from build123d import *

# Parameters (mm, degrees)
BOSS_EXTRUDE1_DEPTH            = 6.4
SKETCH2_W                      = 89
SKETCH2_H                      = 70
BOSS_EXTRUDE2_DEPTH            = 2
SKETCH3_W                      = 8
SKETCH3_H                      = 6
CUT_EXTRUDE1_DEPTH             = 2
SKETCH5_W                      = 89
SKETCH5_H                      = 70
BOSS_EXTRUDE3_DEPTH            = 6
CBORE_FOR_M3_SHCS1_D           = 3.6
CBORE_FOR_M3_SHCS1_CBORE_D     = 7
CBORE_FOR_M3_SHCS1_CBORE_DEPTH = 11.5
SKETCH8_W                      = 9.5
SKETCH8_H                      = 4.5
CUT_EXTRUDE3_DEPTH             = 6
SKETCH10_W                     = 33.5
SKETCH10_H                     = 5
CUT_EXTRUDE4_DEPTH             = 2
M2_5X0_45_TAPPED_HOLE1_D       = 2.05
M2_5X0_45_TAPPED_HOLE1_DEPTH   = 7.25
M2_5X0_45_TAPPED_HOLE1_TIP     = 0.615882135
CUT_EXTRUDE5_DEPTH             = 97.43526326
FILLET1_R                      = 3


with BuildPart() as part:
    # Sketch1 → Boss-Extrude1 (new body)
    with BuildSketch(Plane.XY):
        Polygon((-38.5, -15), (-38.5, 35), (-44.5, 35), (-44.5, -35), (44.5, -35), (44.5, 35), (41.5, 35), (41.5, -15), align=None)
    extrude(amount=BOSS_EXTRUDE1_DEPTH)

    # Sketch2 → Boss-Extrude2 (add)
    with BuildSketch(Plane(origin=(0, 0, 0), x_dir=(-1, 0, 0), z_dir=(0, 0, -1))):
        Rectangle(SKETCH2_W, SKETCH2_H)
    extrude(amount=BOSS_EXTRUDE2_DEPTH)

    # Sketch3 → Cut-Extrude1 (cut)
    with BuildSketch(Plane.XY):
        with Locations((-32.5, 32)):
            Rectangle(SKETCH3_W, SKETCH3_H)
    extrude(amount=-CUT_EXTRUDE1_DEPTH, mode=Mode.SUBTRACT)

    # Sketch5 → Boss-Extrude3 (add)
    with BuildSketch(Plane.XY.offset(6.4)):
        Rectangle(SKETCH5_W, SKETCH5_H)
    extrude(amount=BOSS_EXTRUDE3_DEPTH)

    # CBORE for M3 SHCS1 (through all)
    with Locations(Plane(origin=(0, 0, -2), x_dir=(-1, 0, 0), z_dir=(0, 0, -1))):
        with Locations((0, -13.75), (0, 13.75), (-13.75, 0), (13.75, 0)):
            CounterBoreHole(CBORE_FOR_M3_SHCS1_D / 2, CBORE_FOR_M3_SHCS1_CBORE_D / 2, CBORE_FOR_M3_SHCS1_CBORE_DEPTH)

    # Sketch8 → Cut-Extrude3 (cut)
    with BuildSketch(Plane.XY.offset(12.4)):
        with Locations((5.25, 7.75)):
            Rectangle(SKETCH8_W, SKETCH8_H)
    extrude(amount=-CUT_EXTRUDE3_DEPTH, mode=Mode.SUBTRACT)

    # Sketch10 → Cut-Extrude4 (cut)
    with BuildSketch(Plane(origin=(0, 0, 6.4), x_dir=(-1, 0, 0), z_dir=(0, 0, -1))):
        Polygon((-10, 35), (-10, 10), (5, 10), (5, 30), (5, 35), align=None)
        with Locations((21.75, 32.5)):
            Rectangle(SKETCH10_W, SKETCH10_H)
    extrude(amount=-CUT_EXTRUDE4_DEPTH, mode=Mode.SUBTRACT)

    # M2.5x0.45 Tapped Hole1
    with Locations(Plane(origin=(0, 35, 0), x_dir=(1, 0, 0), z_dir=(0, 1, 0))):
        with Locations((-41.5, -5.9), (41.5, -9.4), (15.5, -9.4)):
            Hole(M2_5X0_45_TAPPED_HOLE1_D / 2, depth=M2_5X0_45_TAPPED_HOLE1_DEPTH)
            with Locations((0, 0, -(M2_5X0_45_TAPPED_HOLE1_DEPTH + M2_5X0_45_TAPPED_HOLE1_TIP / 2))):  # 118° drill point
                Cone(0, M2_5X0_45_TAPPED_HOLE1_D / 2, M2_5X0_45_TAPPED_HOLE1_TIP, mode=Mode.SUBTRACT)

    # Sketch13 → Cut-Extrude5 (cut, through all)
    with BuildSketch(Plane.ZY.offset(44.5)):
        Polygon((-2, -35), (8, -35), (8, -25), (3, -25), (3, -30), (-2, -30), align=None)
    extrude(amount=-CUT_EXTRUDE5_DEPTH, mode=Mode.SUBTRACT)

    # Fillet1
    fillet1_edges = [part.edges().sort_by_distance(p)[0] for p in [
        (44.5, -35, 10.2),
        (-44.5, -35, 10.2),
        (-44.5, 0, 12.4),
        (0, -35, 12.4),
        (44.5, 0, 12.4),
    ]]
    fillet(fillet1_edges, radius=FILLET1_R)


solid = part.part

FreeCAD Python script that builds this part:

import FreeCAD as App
import Part
import Sketcher


def edges_at(feature, points):
    """Names of the edges that pass closest to the given points."""
    edges = feature.Shape.Edges
    near = lambda p: min(range(len(edges)), key=lambda i: edges[i].distToShape(Part.Vertex(*p))[0])
    return sorted({f"Edge{near(p) + 1}" for p in points})


def add_polygon(sketch, points):
    """Adds a closed chain of lines whose ends are joined by coincident constraints."""
    first, n = sketch.GeometryCount, len(points)
    for a, b in zip(points, points[1:] + points[:1]):
        sketch.addGeometry(Part.LineSegment(App.Vector(*a, 0), App.Vector(*b, 0)), False)
    for i in range(n):
        sketch.addConstraint(Sketcher.Constraint("Coincident", first + i, 2, first + (i + 1) % n, 1))

doc = App.newDocument("Part")
body = doc.addObject("PartDesign::Body", "Body")

sketch1 = body.newObject("Sketcher::SketchObject", "Sketch")
sketch1.AttachmentSupport = (doc.getObject("XY_Plane"), [""])
sketch1.MapMode = "FlatFace"
add_polygon(sketch1, [(-38.5, -15), (-38.5, 35), (-44.5, 35), (-44.5, -35), (44.5, -35), (44.5, 35), (41.5, 35), (41.5, -15)])
sketch1.addConstraint(Sketcher.Constraint("Vertical", 0))
sketch1.addConstraint(Sketcher.Constraint("Horizontal", 1))
sketch1.addConstraint(Sketcher.Constraint("Vertical", 2))
sketch1.addConstraint(Sketcher.Constraint("Horizontal", 3))
sketch1.addConstraint(Sketcher.Constraint("Vertical", 4))
sketch1.addConstraint(Sketcher.Constraint("Horizontal", 5))
sketch1.addConstraint(Sketcher.Constraint("Vertical", 6))
sketch1.addConstraint(Sketcher.Constraint("Horizontal", 7))
sketch1.addConstraint(Sketcher.Constraint("Symmetric", 1, 2, 3, 2, -1, 1))
sketch1.addConstraint(Sketcher.Constraint("Horizontal", 1, 2, 4, 2))
sketch1.addConstraint(Sketcher.Constraint("DistanceX", 1, 2, 1, 1, 6.0))
sketch1.addConstraint(Sketcher.Constraint("DistanceX", 3, 1, 3, 2, 89.0))
sketch1.addConstraint(Sketcher.Constraint("DistanceX", 5, 2, 5, 1, 3.0))
sketch1.addConstraint(Sketcher.Constraint("DistanceY", 0, 1, 0, 2, 50.0))
sketch1.addConstraint(Sketcher.Constraint("DistanceY", 2, 2, 2, 1, 70.0))
pad1 = body.newObject("PartDesign::Pad", "Pad")
pad1.Profile = sketch1
pad1.Length = 6.4

sketch2 = body.newObject("Sketcher::SketchObject", "Sketch001")
sketch2.AttachmentSupport = (doc.getObject("XY_Plane"), [""])
sketch2.MapMode = "FlatFace"
add_polygon(sketch2, [(44, 35), (44, -35), (-44, -35), (-44, 35)])
sketch2.addConstraint(Sketcher.Constraint("Vertical", 0))
sketch2.addConstraint(Sketcher.Constraint("Horizontal", 1))
sketch2.addConstraint(Sketcher.Constraint("Vertical", 2))
sketch2.addConstraint(Sketcher.Constraint("Horizontal", 3))
sketch2.addConstraint(Sketcher.Constraint("Symmetric", 0, 2, 2, 2, -1, 1))
sketch2.addConstraint(Sketcher.Constraint("DistanceX", 1, 2, 1, 1, 89.0))
sketch2.addConstraint(Sketcher.Constraint("DistanceY", 0, 2, 0, 1, 70.0))
pad2 = body.newObject("PartDesign::Pad", "Pad001")
pad2.Profile = sketch2
pad2.Length = 2
pad2.Reversed = True

sketch3 = body.newObject("Sketcher::SketchObject", "Sketch002")
sketch3.AttachmentSupport = (doc.getObject("XY_Plane"), [""])
sketch3.MapMode = "FlatFace"
add_polygon(sketch3, [(-36, 35), (-36, 29), (-28, 29), (-28, 35)])
sketch3.addConstraint(Sketcher.Constraint("Vertical", 0))
sketch3.addConstraint(Sketcher.Constraint("Horizontal", 1))
sketch3.addConstraint(Sketcher.Constraint("Vertical", 2))
sketch3.addConstraint(Sketcher.Constraint("Horizontal", 3))
sketch3.addConstraint(Sketcher.Constraint("DistanceX", 1, 1, 1, 2, 8.0))
sketch3.addConstraint(Sketcher.Constraint("DistanceY", 0, 2, 0, 1, 6.0))
sketch3.addConstraint(Sketcher.Constraint("DistanceY", -1, 1, 0, 2, 29.0))
sketch3.addConstraint(Sketcher.Constraint("DistanceX", 0, 2, -1, 1, 36.5))
pocket1 = body.newObject("PartDesign::Pocket", "Pocket")
pocket1.Profile = sketch3
pocket1.Length = 2

sketch4 = body.newObject("Sketcher::SketchObject", "Sketch003")
sketch4.AttachmentSupport = (doc.getObject("XY_Plane"), [""])
sketch4.MapMode = "FlatFace"
sketch4.AttachmentOffset = App.Placement(App.Vector(0, 0, 6.4), App.Rotation())
add_polygon(sketch4, [(-44, 35), (-44, -35), (44, -35), (44, 35)])
sketch4.addConstraint(Sketcher.Constraint("Vertical", 0))
sketch4.addConstraint(Sketcher.Constraint("Horizontal", 1))
sketch4.addConstraint(Sketcher.Constraint("Vertical", 2))
sketch4.addConstraint(Sketcher.Constraint("Horizontal", 3))
sketch4.addConstraint(Sketcher.Constraint("Symmetric", 0, 2, 2, 2, -1, 1))
sketch4.addConstraint(Sketcher.Constraint("DistanceX", 1, 1, 1, 2, 89.0))
sketch4.addConstraint(Sketcher.Constraint("DistanceY", 0, 2, 0, 1, 70.0))
pad3 = body.newObject("PartDesign::Pad", "Pad002")
pad3.Profile = sketch4
pad3.Length = 6

sketch5 = body.newObject("Sketcher::SketchObject", "Sketch004")
sketch5.AttachmentSupport = (doc.getObject("XY_Plane"), [""])
sketch5.MapMode = "FlatFace"
sketch5.AttachmentOffset = App.Placement(App.Vector(0, 0, -2), App.Rotation())
sketch5.addGeometry(Part.Circle(App.Vector(0, -13.8, 0), App.Vector(0, 0, 1), 1.8), False)
sketch5.addGeometry(Part.Circle(App.Vector(0, 13.8, 0), App.Vector(0, 0, 1), 1.8), False)
sketch5.addGeometry(Part.Circle(App.Vector(13.8, 0, 0), App.Vector(0, 0, 1), 1.8), False)
sketch5.addGeometry(Part.Circle(App.Vector(-13.8, 0, 0), App.Vector(0, 0, 1), 1.8), False)
sketch5.addConstraint(Sketcher.Constraint("Equal", 0, 1))
sketch5.addConstraint(Sketcher.Constraint("Equal", 1, 2))
sketch5.addConstraint(Sketcher.Constraint("Equal", 2, 3))
sketch5.addConstraint(Sketcher.Constraint("Symmetric", 0, 3, 1, 3, -1, 1))
sketch5.addConstraint(Sketcher.Constraint("Symmetric", 2, 3, 3, 3, -1, 1))
sketch5.addConstraint(Sketcher.Constraint("PointOnObject", 0, 3, -2))
sketch5.addConstraint(Sketcher.Constraint("PointOnObject", 2, 3, -1))
sketch5.addConstraint(Sketcher.Constraint("Diameter", 0, 3.6))
sketch5.addConstraint(Sketcher.Constraint("DistanceY", 0, 3, 1, 3, 27.5))
sketch5.addConstraint(Sketcher.Constraint("DistanceX", 3, 3, 2, 3, 27.5))
doc.recompute()
hole = body.newObject("PartDesign::Hole", "Hole")
hole.Profile = sketch5
hole.ThreadType = "None"
hole.Diameter = 3.6
hole.DepthType = "ThroughAll"
hole.HoleCutType = "Counterbore"
hole.HoleCutDiameter = 7
hole.HoleCutDepth = 11.5
hole.Reversed = True

sketch6 = body.newObject("Sketcher::SketchObject", "Sketch005")
sketch6.AttachmentSupport = (doc.getObject("XY_Plane"), [""])
sketch6.MapMode = "FlatFace"
sketch6.AttachmentOffset = App.Placement(App.Vector(0, 0, 12.4), App.Rotation())
add_polygon(sketch6, [(0.5, 10), (0.5, 5.5), (10, 5.5), (10, 10)])
sketch6.addConstraint(Sketcher.Constraint("Vertical", 0))
sketch6.addConstraint(Sketcher.Constraint("Horizontal", 1))
sketch6.addConstraint(Sketcher.Constraint("Vertical", 2))
sketch6.addConstraint(Sketcher.Constraint("Horizontal", 3))
sketch6.addConstraint(Sketcher.Constraint("DistanceX", 1, 1, 1, 2, 9.5))
sketch6.addConstraint(Sketcher.Constraint("DistanceY", 0, 2, 0, 1, 4.5))
sketch6.addConstraint(Sketcher.Constraint("DistanceX", -1, 1, 1, 2, 10.0))
sketch6.addConstraint(Sketcher.Constraint("DistanceY", -1, 1, 2, 2, 10.0))
pocket2 = body.newObject("PartDesign::Pocket", "Pocket001")
pocket2.Profile = sketch6
pocket2.Length = 6

sketch7 = body.newObject("Sketcher::SketchObject", "Sketch006")
sketch7.AttachmentSupport = (doc.getObject("XY_Plane"), [""])
sketch7.MapMode = "FlatFace"
sketch7.AttachmentOffset = App.Placement(App.Vector(0, 0, 6.4), App.Rotation())
add_polygon(sketch7, [(10, 35), (10, 10), (-5, 10), (-5, 30), (-38, 30), (-38, 35)])
sketch7.addConstraint(Sketcher.Constraint("Vertical", 0))
sketch7.addConstraint(Sketcher.Constraint("Horizontal", 1))
sketch7.addConstraint(Sketcher.Constraint("Vertical", 2))
sketch7.addConstraint(Sketcher.Constraint("Horizontal", 3))
sketch7.addConstraint(Sketcher.Constraint("Vertical", 4))
sketch7.addConstraint(Sketcher.Constraint("Horizontal", 5))
sketch7.addConstraint(Sketcher.Constraint("DistanceX", 1, 2, 1, 1, 15.0))
sketch7.addConstraint(Sketcher.Constraint("DistanceY", 0, 2, 0, 1, 25.0))
sketch7.addConstraint(Sketcher.Constraint("DistanceY", 2, 1, 2, 2, 20.0))
sketch7.addConstraint(Sketcher.Constraint("DistanceX", 3, 2, 3, 1, 33.5))
sketch7.addConstraint(Sketcher.Constraint("DistanceX", -1, 1, 0, 2, 10.0))
sketch7.addConstraint(Sketcher.Constraint("DistanceY", -1, 1, 0, 2, 10.0))
pocket3 = body.newObject("PartDesign::Pocket", "Pocket002")
pocket3.Profile = sketch7
pocket3.Length = 2
pocket3.Reversed = True

sketch8 = body.newObject("Sketcher::SketchObject", "Sketch007")
sketch8.AttachmentSupport = (doc.getObject("XZ_Plane"), [""])
sketch8.MapMode = "FlatFace"
sketch8.AttachmentOffset = App.Placement(App.Vector(0, 0, -35), App.Rotation())
sketch8.addGeometry(Part.Circle(App.Vector(-41.5, 5.9, 0), App.Vector(0, 0, 1), 1), False)
sketch8.addGeometry(Part.Circle(App.Vector(41.5, 9.4, 0), App.Vector(0, 0, 1), 1), False)
sketch8.addGeometry(Part.Circle(App.Vector(15.5, 9.4, 0), App.Vector(0, 0, 1), 1), False)
sketch8.addConstraint(Sketcher.Constraint("Equal", 0, 1))
sketch8.addConstraint(Sketcher.Constraint("Equal", 1, 2))
sketch8.addConstraint(Sketcher.Constraint("Horizontal", 1, 3, 2, 3))
sketch8.addConstraint(Sketcher.Constraint("Diameter", 0, 2.05))
sketch8.addConstraint(Sketcher.Constraint("DistanceX", 0, 3, 1, 3, 83.0))
sketch8.addConstraint(Sketcher.Constraint("DistanceX", 2, 3, 1, 3, 26.0))
sketch8.addConstraint(Sketcher.Constraint("DistanceX", 0, 3, -1, 1, 41.5))
sketch8.addConstraint(Sketcher.Constraint("DistanceY", -1, 1, 0, 3, 5.9))
sketch8.addConstraint(Sketcher.Constraint("DistanceY", -1, 1, 1, 3, 9.4))
doc.recompute()
hole2 = body.newObject("PartDesign::Hole", "Hole001")
hole2.Profile = sketch8
hole2.ThreadType = "None"
hole2.Diameter = 2.05
hole2.DepthType = "Dimension"
hole2.Depth = 7.25
hole2.DrillPoint = "Angled"
hole2.DrillPointAngle = 118
hole2.Reversed = True

sketch9 = body.newObject("Sketcher::SketchObject", "Sketch008")
sketch9.AttachmentSupport = (doc.getObject("YZ_Plane"), [""])
sketch9.MapMode = "FlatFace"
sketch9.AttachmentOffset = App.Placement(App.Vector(0, 0, -44.5), App.Rotation())
add_polygon(sketch9, [(-35, -2), (-35, 8), (-25, 8), (-25, 3), (-30, 3), (-30, -2)])
sketch9.addConstraint(Sketcher.Constraint("Vertical", 0))
sketch9.addConstraint(Sketcher.Constraint("Horizontal", 1))
sketch9.addConstraint(Sketcher.Constraint("Vertical", 2))
sketch9.addConstraint(Sketcher.Constraint("Horizontal", 3))
sketch9.addConstraint(Sketcher.Constraint("Vertical", 4))
sketch9.addConstraint(Sketcher.Constraint("Horizontal", 5))
sketch9.addConstraint(Sketcher.Constraint("Equal", 3, 5))
sketch9.addConstraint(Sketcher.Constraint("Equal", 1, 0))
sketch9.addConstraint(Sketcher.Constraint("Equal", 5, 2))
sketch9.addConstraint(Sketcher.Constraint("DistanceX", 1, 1, 1, 2, 10.0))
sketch9.addConstraint(Sketcher.Constraint("DistanceX", 0, 2, -1, 1, 35.0))
sketch9.addConstraint(Sketcher.Constraint("DistanceY", -1, 1, 0, 2, 8.0))
pocket4 = body.newObject("PartDesign::Pocket", "Pocket003")
pocket4.Profile = sketch9
pocket4.Type = "ThroughAll"
pocket4.Reversed = True
doc.recompute()

fillet = body.newObject("PartDesign::Fillet", "Fillet")
fillet.Base = (pocket4, edges_at(pocket4, [
    (44.5, -35, 10.2),
    (-44.5, -35, 10.2),
    (-44.5, 0, 12.4),
    (0, -35, 12.4),
    (44.5, 0, 12.4),
]))
fillet.Radius = 3

doc.recompute()
